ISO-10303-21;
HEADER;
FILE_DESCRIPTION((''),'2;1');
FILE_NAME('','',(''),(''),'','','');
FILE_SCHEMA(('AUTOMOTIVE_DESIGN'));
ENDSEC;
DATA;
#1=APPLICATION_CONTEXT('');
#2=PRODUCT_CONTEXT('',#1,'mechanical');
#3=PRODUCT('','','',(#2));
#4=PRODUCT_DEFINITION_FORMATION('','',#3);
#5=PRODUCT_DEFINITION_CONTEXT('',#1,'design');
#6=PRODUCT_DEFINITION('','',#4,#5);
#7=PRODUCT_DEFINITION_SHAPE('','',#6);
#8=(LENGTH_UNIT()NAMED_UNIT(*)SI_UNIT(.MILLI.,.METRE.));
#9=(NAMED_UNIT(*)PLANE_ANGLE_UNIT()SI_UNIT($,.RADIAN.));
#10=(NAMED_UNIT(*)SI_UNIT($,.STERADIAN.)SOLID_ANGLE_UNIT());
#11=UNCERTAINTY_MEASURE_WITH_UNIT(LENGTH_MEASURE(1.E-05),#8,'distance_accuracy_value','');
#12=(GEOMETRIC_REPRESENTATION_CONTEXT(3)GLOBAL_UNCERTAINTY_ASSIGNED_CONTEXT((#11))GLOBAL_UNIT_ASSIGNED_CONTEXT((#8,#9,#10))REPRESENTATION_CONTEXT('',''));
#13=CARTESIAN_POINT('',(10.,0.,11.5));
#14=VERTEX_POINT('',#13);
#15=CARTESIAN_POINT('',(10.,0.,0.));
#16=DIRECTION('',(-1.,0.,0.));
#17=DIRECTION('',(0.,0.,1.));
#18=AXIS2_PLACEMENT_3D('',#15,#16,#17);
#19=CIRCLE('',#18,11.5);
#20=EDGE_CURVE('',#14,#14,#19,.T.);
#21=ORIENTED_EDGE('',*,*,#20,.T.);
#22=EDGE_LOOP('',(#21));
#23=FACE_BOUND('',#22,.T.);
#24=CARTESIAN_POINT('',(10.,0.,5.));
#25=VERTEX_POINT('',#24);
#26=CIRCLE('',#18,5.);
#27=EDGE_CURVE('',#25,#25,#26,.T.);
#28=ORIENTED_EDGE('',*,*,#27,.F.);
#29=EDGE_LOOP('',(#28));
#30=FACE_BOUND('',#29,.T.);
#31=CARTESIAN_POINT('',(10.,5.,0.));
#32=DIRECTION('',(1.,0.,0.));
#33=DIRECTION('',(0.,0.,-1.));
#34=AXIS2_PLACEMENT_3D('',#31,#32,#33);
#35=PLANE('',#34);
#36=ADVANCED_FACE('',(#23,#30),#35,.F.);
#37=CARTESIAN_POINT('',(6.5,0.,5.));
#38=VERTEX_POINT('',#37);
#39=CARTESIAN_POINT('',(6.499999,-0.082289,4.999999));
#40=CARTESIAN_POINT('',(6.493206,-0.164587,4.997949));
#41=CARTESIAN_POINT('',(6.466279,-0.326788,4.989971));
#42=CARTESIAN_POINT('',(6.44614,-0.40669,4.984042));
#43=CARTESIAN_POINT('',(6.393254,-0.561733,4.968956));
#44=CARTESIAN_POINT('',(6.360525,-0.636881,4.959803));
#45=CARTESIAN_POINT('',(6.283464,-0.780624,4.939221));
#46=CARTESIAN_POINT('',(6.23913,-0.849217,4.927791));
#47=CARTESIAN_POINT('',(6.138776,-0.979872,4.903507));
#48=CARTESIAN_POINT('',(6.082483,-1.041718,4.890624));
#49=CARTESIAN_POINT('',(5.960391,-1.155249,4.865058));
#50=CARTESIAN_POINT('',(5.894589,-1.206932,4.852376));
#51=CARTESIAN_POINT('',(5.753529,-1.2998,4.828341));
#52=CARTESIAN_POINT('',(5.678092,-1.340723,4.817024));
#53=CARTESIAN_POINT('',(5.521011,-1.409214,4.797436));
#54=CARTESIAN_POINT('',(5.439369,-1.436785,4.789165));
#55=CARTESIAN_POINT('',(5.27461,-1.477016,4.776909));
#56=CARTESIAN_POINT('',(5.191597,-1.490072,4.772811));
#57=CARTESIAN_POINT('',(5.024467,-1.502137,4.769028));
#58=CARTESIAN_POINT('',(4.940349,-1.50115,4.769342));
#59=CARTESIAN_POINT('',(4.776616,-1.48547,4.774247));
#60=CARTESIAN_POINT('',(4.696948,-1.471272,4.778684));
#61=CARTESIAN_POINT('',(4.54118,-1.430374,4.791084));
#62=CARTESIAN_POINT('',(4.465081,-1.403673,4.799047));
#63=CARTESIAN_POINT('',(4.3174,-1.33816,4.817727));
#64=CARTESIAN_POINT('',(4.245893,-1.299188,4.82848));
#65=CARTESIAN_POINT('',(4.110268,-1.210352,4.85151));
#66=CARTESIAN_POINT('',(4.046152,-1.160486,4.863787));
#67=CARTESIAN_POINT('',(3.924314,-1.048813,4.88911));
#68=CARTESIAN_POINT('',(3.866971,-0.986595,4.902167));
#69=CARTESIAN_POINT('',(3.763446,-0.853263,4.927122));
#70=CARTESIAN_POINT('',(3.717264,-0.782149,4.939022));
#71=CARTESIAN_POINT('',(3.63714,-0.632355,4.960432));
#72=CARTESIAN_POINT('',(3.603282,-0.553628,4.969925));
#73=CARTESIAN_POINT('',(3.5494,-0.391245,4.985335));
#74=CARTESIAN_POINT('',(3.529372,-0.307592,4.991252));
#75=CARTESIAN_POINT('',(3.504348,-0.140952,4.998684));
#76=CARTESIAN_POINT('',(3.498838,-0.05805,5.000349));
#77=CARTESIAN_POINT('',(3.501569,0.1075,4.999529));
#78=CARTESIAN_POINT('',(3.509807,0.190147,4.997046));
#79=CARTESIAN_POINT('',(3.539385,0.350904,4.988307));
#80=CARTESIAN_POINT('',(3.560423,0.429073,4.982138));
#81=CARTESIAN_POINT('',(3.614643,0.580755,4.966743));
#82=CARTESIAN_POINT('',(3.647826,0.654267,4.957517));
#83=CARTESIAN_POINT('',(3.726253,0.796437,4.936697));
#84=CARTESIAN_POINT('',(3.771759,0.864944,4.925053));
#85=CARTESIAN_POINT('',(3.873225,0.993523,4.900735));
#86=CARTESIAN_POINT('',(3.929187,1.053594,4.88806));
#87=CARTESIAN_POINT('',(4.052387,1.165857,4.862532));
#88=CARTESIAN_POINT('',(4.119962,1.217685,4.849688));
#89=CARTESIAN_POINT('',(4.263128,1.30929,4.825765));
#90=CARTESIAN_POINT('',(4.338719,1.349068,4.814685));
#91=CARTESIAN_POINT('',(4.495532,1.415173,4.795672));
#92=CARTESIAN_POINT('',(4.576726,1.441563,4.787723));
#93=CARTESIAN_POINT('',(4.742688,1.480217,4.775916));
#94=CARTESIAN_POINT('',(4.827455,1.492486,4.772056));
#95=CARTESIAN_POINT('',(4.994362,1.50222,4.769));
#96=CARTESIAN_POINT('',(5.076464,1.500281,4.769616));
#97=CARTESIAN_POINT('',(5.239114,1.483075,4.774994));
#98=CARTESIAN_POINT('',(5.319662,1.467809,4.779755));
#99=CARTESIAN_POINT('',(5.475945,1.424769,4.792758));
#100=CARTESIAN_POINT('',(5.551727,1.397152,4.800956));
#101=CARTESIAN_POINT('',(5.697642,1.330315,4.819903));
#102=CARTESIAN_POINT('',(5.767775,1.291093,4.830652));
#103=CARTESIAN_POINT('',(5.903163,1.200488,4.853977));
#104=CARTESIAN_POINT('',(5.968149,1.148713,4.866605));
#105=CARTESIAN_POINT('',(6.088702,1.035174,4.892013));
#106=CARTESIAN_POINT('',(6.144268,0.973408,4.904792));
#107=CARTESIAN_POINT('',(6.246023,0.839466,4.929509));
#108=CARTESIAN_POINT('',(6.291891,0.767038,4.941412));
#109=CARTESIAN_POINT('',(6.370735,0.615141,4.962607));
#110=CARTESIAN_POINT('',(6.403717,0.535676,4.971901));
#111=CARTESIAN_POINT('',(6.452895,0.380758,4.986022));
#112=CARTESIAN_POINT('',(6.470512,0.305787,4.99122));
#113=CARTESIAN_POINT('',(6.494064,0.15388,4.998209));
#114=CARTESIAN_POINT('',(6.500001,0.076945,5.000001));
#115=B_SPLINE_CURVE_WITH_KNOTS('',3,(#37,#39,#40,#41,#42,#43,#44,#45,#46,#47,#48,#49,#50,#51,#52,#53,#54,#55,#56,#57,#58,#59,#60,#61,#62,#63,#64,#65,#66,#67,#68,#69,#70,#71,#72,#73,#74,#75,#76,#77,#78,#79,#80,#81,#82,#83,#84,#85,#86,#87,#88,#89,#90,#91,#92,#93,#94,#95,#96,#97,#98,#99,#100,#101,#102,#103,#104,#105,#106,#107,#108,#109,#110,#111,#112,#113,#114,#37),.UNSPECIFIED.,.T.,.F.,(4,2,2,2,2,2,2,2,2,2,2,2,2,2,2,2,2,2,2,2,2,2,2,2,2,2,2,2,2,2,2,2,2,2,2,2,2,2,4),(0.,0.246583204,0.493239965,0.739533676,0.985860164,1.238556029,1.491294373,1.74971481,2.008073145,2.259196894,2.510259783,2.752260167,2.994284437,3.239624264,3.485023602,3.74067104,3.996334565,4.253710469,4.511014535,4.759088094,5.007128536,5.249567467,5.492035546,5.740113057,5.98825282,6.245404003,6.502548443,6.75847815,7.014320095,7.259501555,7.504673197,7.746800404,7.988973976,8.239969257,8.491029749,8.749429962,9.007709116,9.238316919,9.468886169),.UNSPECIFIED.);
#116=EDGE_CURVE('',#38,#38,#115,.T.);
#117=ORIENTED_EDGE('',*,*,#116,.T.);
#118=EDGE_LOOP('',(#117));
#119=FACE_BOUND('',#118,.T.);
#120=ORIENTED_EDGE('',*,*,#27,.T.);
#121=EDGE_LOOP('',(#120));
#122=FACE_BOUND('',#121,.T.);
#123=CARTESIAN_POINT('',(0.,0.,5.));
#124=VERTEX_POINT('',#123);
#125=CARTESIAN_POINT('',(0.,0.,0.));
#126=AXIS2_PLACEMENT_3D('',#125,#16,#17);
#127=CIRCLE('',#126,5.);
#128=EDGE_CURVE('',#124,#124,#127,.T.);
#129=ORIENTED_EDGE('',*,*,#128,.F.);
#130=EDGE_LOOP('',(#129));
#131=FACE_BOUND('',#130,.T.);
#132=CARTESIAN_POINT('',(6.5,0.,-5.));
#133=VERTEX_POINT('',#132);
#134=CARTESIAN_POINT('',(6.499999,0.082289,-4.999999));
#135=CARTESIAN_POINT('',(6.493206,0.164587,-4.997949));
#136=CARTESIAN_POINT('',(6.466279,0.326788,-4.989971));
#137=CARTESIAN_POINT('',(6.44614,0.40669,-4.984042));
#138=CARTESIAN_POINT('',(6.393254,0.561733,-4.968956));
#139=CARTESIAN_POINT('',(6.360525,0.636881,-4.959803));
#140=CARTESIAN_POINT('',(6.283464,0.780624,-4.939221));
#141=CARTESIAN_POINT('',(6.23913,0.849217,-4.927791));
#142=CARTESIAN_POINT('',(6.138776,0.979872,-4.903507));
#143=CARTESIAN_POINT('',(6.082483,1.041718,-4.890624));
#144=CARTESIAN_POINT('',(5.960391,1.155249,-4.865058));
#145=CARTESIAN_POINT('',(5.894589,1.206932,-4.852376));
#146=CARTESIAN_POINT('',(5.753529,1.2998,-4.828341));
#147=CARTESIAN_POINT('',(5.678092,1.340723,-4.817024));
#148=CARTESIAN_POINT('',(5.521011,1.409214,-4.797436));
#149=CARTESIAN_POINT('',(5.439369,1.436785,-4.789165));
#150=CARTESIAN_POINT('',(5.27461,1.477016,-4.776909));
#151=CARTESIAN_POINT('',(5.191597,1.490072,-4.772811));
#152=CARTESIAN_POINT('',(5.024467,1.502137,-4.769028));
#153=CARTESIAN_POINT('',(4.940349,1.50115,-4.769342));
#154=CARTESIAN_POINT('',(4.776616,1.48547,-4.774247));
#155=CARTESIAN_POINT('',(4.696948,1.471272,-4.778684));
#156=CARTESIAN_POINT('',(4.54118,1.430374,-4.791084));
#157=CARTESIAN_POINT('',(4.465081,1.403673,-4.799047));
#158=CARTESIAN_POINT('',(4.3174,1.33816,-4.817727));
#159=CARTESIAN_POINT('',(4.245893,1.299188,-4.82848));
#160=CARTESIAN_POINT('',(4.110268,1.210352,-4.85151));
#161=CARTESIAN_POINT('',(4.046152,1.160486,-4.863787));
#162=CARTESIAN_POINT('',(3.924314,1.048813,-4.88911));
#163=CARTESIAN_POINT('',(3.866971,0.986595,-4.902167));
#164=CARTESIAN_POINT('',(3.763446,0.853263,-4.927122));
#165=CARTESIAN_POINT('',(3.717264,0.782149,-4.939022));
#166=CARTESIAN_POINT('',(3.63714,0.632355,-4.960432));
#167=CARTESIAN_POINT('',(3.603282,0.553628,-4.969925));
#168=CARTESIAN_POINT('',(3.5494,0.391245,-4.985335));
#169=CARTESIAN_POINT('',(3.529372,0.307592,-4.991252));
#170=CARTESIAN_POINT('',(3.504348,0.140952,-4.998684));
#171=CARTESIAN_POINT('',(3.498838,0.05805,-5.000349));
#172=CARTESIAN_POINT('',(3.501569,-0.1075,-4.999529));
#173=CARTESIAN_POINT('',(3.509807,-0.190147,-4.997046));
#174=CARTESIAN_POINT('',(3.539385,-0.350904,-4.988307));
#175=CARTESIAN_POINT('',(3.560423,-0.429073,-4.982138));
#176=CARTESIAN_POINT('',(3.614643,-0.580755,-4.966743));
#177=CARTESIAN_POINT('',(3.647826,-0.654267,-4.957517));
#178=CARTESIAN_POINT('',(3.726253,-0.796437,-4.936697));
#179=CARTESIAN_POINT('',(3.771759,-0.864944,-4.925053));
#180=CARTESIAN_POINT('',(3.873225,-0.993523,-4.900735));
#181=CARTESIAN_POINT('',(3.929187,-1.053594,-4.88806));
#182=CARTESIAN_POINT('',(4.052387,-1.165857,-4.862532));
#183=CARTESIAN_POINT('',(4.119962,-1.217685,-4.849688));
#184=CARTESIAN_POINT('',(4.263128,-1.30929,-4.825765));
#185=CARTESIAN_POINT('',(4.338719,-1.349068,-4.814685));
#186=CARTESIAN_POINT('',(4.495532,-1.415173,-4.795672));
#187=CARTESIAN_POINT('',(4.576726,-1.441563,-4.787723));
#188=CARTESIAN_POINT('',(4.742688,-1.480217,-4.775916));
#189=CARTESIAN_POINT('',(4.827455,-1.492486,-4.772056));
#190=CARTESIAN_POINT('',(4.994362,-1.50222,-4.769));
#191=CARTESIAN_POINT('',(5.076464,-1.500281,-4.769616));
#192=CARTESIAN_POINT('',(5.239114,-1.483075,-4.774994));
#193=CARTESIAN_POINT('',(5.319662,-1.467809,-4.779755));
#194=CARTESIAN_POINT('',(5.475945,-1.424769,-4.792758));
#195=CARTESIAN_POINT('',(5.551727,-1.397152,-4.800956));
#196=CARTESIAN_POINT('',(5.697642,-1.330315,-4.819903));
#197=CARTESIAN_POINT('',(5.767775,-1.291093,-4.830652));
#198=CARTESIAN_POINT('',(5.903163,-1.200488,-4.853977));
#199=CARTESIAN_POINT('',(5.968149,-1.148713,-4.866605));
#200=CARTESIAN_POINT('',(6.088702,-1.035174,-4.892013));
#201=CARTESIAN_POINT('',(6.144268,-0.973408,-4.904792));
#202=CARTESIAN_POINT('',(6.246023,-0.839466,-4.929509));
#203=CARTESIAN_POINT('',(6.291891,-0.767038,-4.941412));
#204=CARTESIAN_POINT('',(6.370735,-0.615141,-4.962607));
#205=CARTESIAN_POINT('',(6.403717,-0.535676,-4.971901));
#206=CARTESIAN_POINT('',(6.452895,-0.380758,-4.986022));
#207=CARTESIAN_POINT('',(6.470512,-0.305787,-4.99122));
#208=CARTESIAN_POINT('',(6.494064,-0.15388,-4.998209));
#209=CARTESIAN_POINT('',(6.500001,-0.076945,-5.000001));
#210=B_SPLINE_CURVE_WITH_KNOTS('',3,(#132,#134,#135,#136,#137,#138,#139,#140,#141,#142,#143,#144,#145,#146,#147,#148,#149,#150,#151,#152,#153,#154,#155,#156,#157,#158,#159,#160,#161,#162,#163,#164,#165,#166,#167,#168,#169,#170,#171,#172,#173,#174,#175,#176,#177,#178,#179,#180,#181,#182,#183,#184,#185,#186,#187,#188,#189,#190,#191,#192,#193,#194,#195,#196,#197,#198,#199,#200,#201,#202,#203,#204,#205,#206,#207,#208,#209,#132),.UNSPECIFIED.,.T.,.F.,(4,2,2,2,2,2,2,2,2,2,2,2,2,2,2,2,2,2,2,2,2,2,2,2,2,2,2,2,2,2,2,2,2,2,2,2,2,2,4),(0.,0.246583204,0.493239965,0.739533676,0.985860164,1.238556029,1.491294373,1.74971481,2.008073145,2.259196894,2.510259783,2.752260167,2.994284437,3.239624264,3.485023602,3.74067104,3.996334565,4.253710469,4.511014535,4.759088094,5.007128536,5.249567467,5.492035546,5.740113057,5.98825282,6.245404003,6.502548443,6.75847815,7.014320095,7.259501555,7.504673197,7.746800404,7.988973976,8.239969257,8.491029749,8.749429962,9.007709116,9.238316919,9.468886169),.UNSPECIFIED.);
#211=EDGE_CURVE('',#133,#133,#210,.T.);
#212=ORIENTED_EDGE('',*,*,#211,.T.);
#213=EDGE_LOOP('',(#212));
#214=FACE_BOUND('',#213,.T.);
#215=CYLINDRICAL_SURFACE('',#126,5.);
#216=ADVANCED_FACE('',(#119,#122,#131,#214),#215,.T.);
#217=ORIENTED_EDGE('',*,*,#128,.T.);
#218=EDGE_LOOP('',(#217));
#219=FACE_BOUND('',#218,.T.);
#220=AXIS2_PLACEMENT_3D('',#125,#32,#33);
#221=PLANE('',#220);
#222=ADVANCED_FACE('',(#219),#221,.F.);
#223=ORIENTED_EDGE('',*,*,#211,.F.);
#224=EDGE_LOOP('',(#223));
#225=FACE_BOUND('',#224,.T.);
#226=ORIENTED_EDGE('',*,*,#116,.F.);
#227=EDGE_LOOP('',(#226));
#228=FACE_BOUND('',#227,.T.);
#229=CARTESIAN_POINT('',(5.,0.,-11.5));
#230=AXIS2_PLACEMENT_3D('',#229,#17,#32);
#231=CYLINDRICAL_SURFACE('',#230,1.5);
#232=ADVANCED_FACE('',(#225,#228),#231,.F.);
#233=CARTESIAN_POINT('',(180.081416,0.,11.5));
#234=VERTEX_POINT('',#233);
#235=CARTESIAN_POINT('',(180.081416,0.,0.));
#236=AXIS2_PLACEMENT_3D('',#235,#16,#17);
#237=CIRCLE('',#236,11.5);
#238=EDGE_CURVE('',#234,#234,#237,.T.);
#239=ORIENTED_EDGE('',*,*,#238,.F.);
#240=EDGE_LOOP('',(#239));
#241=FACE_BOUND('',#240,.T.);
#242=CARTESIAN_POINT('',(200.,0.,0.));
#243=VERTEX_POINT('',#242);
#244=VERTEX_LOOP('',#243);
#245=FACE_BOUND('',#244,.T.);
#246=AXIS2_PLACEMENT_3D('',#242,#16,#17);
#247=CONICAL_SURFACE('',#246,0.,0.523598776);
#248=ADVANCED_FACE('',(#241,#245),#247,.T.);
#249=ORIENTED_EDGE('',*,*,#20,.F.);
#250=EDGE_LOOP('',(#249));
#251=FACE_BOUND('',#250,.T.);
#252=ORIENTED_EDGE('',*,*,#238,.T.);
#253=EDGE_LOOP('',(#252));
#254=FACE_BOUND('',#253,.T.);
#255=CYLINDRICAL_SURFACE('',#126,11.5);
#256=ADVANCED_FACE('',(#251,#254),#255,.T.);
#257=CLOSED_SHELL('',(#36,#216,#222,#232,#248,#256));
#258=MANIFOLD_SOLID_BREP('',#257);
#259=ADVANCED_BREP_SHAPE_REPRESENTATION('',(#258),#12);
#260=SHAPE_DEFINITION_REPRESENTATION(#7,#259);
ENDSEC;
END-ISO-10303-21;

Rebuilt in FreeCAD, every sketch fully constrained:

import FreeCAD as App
import Part
import Sketcher
from FreeCAD import Vector
Q = App.Units.Quantity

doc = App.newDocument("Part")
body = doc.addObject("PartDesign::Body", "Body")

# Sketch on XY plane
sketch1 = doc.addObject("Sketcher::SketchObject", "Sketch")
body.addObject(sketch1)
sketch1.AttachmentSupport = (doc.XY_Plane, [""])
sketch1.MapMode = "FlatFace"
sketch1.addGeometry(Part.LineSegment(Vector(0, 5, 0), Vector(0, 0, 0)), False)
sketch1.addGeometry(Part.LineSegment(Vector(0, 0, 0), Vector(200, 0, 0)), False)
sketch1.addGeometry(Part.LineSegment(Vector(200, 0, 0), Vector(180, 12, 0)), False)
sketch1.addGeometry(Part.LineSegment(Vector(180, 12, 0), Vector(10, 12, 0)), False)
sketch1.addGeometry(Part.LineSegment(Vector(10, 12, 0), Vector(10, 5, 0)), False)
sketch1.addGeometry(Part.LineSegment(Vector(10, 5, 0), Vector(0, 5, 0)), False)
sketch1.addConstraint(Sketcher.Constraint("Coincident", 0, 2, 1, 1))
sketch1.addConstraint(Sketcher.Constraint("Coincident", 1, 2, 2, 1))
sketch1.addConstraint(Sketcher.Constraint("Coincident", 2, 2, 3, 1))
sketch1.addConstraint(Sketcher.Constraint("Coincident", 3, 2, 4, 1))
sketch1.addConstraint(Sketcher.Constraint("Coincident", 4, 2, 5, 1))
sketch1.addConstraint(Sketcher.Constraint("Coincident", 5, 2, 0, 1))
sketch1.addConstraint(Sketcher.Constraint("Vertical", 0))
sketch1.addConstraint(Sketcher.Constraint("Horizontal", 1))
sketch1.addConstraint(Sketcher.Constraint("Horizontal", 3))
sketch1.addConstraint(Sketcher.Constraint("Vertical", 4))
sketch1.addConstraint(Sketcher.Constraint("Horizontal", 5))
sketch1.addConstraint(Sketcher.Constraint("Coincident", 0, 2, -1, 1))
sketch1.addConstraint(Sketcher.Constraint("DistanceX", 1, 1, 1, 2, 200.0))
sketch1.addConstraint(Sketcher.Constraint("DistanceX", 5, 2, 5, 1, 10.0))
sketch1.addConstraint(Sketcher.Constraint("DistanceY", 0, 2, 0, 1, 5.0))
sketch1.addConstraint(Sketcher.Constraint("Angle", 2, Q("150 deg")))
sketch1.addConstraint(Sketcher.Constraint("Distance", 2, 23.0))
revolution = doc.addObject("PartDesign::Revolution", "Revolution")
body.addObject(revolution)
revolution.Profile = sketch1
revolution.ReferenceAxis = (sketch1, ["H_Axis"])
revolution.Angle = 360

# Sketch on XY plane
sketch2 = doc.addObject("Sketcher::SketchObject", "Sketch001")
body.addObject(sketch2)
sketch2.AttachmentSupport = (doc.XY_Plane, [""])
sketch2.MapMode = "FlatFace"
sketch2.AttachmentOffset = App.Placement(Vector(0, 0, 5), App.Rotation())
sketch2.addGeometry(Part.Circle(Vector(5, 0, 0), Vector(0, 0, 1), 1.5), False)
sketch2.addConstraint(Sketcher.Constraint("PointOnObject", 0, 3, -1))
sketch2.addConstraint(Sketcher.Constraint("Diameter", 0, 3.0))
sketch2.addConstraint(Sketcher.Constraint("DistanceX", -1, 1, 0, 3, 5.0))
pocket1 = doc.addObject("PartDesign::Pocket", "Pocket")
body.addObject(pocket1)
pocket1.Profile = sketch2
pocket1.Type = "ThroughAll"

doc.recompute()
